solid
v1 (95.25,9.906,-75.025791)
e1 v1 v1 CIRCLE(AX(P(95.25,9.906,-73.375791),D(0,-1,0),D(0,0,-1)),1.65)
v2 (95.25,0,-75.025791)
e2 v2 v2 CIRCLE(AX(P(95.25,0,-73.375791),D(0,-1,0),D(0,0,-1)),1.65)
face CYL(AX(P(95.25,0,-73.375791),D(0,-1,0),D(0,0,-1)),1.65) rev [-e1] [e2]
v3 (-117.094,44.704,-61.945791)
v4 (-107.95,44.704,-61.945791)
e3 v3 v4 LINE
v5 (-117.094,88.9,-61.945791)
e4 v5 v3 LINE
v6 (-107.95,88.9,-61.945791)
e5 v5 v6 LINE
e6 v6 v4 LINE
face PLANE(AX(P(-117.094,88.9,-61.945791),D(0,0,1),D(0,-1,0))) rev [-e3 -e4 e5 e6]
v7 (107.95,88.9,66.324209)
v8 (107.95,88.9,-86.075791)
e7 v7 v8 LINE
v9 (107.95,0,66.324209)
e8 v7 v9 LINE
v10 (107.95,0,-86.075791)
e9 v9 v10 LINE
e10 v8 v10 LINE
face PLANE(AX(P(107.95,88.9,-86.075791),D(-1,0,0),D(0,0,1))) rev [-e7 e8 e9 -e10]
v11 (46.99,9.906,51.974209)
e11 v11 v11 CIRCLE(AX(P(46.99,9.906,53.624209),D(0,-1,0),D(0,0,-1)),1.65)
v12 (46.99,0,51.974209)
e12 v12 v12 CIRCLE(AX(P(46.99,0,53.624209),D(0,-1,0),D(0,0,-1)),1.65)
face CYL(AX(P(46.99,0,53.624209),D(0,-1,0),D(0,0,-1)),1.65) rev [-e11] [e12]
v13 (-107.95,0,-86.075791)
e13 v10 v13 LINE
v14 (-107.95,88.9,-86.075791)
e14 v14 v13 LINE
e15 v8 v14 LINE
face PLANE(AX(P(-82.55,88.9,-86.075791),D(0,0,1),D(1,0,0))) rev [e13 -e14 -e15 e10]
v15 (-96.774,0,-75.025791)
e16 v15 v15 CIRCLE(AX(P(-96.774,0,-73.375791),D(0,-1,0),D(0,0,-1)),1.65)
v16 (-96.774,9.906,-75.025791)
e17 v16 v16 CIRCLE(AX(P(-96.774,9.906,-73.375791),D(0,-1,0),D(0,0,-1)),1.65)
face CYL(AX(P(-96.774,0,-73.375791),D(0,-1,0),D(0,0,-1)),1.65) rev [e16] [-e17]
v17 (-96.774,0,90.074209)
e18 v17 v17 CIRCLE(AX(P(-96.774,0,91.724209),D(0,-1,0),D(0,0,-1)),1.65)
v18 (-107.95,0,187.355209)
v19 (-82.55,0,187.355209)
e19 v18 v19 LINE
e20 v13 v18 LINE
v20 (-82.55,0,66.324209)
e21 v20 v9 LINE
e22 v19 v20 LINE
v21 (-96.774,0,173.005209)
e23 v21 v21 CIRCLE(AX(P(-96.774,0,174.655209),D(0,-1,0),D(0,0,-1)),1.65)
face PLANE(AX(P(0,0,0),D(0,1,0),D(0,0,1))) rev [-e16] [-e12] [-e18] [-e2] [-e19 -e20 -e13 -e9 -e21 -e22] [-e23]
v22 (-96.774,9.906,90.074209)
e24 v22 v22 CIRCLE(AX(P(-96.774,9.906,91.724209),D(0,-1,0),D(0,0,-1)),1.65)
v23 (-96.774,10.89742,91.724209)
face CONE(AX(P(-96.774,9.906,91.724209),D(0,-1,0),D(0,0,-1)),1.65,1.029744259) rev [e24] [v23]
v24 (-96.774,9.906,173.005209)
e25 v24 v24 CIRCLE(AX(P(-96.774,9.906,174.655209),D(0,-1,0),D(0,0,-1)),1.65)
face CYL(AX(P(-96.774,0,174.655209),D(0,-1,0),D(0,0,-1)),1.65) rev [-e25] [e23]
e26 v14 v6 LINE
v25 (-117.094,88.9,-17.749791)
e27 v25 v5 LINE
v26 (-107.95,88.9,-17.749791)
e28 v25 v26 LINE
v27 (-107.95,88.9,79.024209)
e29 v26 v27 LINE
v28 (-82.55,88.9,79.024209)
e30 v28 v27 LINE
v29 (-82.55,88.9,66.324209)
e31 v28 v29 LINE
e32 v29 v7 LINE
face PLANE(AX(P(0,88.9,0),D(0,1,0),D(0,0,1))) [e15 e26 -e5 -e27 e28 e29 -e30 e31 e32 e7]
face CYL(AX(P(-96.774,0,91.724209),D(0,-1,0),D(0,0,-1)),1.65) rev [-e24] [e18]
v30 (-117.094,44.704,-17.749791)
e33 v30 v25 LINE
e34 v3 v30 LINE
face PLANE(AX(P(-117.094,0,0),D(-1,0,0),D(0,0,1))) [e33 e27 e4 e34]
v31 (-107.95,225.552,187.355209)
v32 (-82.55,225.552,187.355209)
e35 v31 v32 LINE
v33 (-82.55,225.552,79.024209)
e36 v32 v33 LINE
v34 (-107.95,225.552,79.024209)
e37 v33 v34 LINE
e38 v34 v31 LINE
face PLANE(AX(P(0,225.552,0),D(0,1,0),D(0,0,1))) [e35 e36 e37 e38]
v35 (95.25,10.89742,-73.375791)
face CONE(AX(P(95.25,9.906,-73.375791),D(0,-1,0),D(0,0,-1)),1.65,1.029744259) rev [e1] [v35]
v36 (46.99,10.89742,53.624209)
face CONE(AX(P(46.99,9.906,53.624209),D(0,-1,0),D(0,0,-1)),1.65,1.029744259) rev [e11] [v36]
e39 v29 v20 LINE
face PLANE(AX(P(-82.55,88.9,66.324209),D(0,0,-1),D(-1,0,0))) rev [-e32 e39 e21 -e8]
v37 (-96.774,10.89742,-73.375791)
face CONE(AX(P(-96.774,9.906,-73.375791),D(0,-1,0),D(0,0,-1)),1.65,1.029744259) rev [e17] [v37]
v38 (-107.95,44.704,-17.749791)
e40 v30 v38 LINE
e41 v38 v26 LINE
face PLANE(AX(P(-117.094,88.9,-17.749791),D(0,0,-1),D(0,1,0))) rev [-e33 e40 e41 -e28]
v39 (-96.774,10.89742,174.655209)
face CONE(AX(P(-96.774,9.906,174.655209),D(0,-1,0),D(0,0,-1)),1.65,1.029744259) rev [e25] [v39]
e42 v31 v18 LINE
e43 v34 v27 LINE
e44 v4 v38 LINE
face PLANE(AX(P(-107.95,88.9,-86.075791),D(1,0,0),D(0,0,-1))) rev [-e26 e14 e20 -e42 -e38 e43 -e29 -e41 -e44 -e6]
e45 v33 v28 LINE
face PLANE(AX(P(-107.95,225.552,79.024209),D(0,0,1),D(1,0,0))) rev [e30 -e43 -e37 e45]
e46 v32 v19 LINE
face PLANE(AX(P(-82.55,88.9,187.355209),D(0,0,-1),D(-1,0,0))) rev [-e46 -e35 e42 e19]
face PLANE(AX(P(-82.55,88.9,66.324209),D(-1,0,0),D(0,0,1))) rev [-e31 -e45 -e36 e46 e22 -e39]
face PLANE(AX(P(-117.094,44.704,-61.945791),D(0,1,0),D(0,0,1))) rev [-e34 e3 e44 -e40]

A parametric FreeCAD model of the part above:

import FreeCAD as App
import Part
import Sketcher
Q = App.Units.Quantity


def add_polygon(sketch, points):
    """Adds a closed chain of lines whose ends are joined by coincident constraints."""
    first, n = sketch.GeometryCount, len(points)
    for a, b in zip(points, points[1:] + points[:1]):
        sketch.addGeometry(Part.LineSegment(App.Vector(*a, 0), App.Vector(*b, 0)), False)
    for i in range(n):
        sketch.addConstraint(Sketcher.Constraint("Coincident", first + i, 2, first + (i + 1) % n, 1))

doc = App.newDocument("Part")
body = doc.addObject("PartDesign::Body", "Body")

# Sketch on XZ plane
sketch1 = body.newObject("Sketcher::SketchObject", "Sketch")
sketch1.AttachmentSupport = (doc.getObject("XZ_Plane"), [""])
sketch1.MapMode = "FlatFace"
add_polygon(sketch1, [(108, -86), (-108, -86), (-108, 187), (-83, 187), (-83, 66), (108, 66)])  # lines 0-5
sketch1.addConstraint(Sketcher.Constraint("Horizontal", 0))
sketch1.addConstraint(Sketcher.Constraint("Vertical", 1))
sketch1.addConstraint(Sketcher.Constraint("Horizontal", 2))
sketch1.addConstraint(Sketcher.Constraint("Vertical", 3))
sketch1.addConstraint(Sketcher.Constraint("Horizontal", 4))
sketch1.addConstraint(Sketcher.Constraint("Vertical", 5))
sketch1.addConstraint(Sketcher.Constraint("DistanceX", 2, 1, 2, 2, Q("1 in")))
sketch1.addConstraint(Sketcher.Constraint("DistanceY", 5, 2, 5, 1, Q("6 in")))
sketch1.addConstraint(Sketcher.Constraint("DistanceX", 0, 2, 0, 1, Q("8.5 in")))
sketch1.addConstraint(Sketcher.Constraint("DistanceY", 1, 1, 1, 2, Q("10.765 in")))
sketch1.addConstraint(Sketcher.Constraint("DistanceX", 0, 2, -1, 1, Q("4.25 in")))
sketch1.addConstraint(Sketcher.Constraint("DistanceY", 0, 2, -1, 1, Q("86.075791 mm")))
pad1 = body.newObject("PartDesign::Pad", "Pad")
pad1.Profile = sketch1
pad1.Length = Q("3.5 in")
pad1.Reversed = True

# Sketch on XZ plane
sketch2 = body.newObject("Sketcher::SketchObject", "Sketch001")
sketch2.AttachmentSupport = (doc.getObject("XZ_Plane"), [""])
sketch2.MapMode = "FlatFace"
sketch2.AttachmentOffset = App.Placement(App.Vector(0, 0, -3.5 * 25.4), App.Rotation())
add_polygon(sketch2, [(-108, 79), (-108, 187), (-83, 187), (-83, 79)])  # lines 0-3
sketch2.addConstraint(Sketcher.Constraint("Vertical", 0))
sketch2.addConstraint(Sketcher.Constraint("Horizontal", 1))
sketch2.addConstraint(Sketcher.Constraint("Vertical", 2))
sketch2.addConstraint(Sketcher.Constraint("Horizontal", 3))
sketch2.addConstraint(Sketcher.Constraint("DistanceX", 1, 1, 1, 2, Q("1 in")))
sketch2.addConstraint(Sketcher.Constraint("DistanceY", 0, 1, 0, 2, Q("4.265 in")))
sketch2.addConstraint(Sketcher.Constraint("DistanceX", 0, 2, -1, 1, Q("4.25 in")))
sketch2.addConstraint(Sketcher.Constraint("DistanceY", -1, 1, 0, 2, Q("187.355209 mm")))
pad2 = body.newObject("PartDesign::Pad", "Pad001")
pad2.Profile = sketch2
pad2.Length = Q("5.38 in")
pad2.Reversed = True

# Sketch on XZ plane
sketch3 = body.newObject("Sketcher::SketchObject", "Sketch002")
sketch3.AttachmentSupport = (doc.getObject("XZ_Plane"), [""])
sketch3.MapMode = "FlatFace"
sketch3.addGeometry(Part.Circle(App.Vector(95.2, -73.4, 0), App.Vector(0, 0, 1), 1.6), False)
sketch3.addGeometry(Part.Circle(App.Vector(-96.8, -73.4, 0), App.Vector(0, 0, 1), 1.6), False)
sketch3.addGeometry(Part.Circle(App.Vector(47, 53.6, 0), App.Vector(0, 0, 1), 1.6), False)
sketch3.addGeometry(Part.Circle(App.Vector(-96.8, 174.7, 0), App.Vector(0, 0, 1), 1.6), False)
sketch3.addGeometry(Part.Circle(App.Vector(-96.8, 91.7, 0), App.Vector(0, 0, 1), 1.6), False)
sketch3.addConstraint(Sketcher.Constraint("Equal", 0, 1))
sketch3.addConstraint(Sketcher.Constraint("Equal", 1, 2))
sketch3.addConstraint(Sketcher.Constraint("Equal", 2, 3))
sketch3.addConstraint(Sketcher.Constraint("Equal", 3, 4))
sketch3.addConstraint(Sketcher.Constraint("Horizontal", 0, 3, 1, 3))
sketch3.addConstraint(Sketcher.Constraint("Vertical", 1, 3, 3, 3))
sketch3.addConstraint(Sketcher.Constraint("Vertical", 3, 3, 4, 3))
sketch3.addConstraint(Sketcher.Constraint("DistanceY", 0, 3, 2, 3, Q("5 in")))
sketch3.addConstraint(Sketcher.Constraint("DistanceX", 2, 3, 0, 3, Q("1.9 in")))
sketch3.addConstraint(Sketcher.Constraint("DistanceY", 2, 3, 4, 3, Q("1.5 in")))
sketch3.addConstraint(Sketcher.Constraint("Diameter", 0, Q("3.3 mm")))
sketch3.addConstraint(Sketcher.Constraint("DistanceX", -1, 1, 0, 3, Q("3.75 in")))
sketch3.addConstraint(Sketcher.Constraint("DistanceX", 1, 3, -1, 1, Q("3.81 in")))
sketch3.addConstraint(Sketcher.Constraint("DistanceY", 2, 3, 3, 3, Q("4.765 in")))
sketch3.addConstraint(Sketcher.Constraint("DistanceY", 0, 3, -1, 1, Q("73.375791 mm")))
doc.recompute()
hole = body.newObject("PartDesign::Hole", "Hole")
hole.Profile = sketch3
hole.ThreadType = "None"
hole.Diameter = 3.3
hole.DepthType = "Dimension"
hole.Depth = Q("0.39 in")
hole.DrillPoint = "Angled"
hole.DrillPointAngle = 118

# Sketch on YZ plane
sketch4 = body.newObject("Sketcher::SketchObject", "Sketch003")
sketch4.AttachmentSupport = (doc.getObject("YZ_Plane"), [""])
sketch4.MapMode = "FlatFace"
sketch4.AttachmentOffset = App.Placement(App.Vector(0, 0, -4.25 * 25.4), App.Rotation())
add_polygon(sketch4, [(89, -62), (45, -62), (45, -18), (89, -18)])  # lines 0-3
sketch4.addConstraint(Sketcher.Constraint("Horizontal", 0))
sketch4.addConstraint(Sketcher.Constraint("Vertical", 1))
sketch4.addConstraint(Sketcher.Constraint("Horizontal", 2))
sketch4.addConstraint(Sketcher.Constraint("Vertical", 3))
sketch4.addConstraint(Sketcher.Constraint("Equal", 2, 1))
sketch4.addConstraint(Sketcher.Constraint("DistanceX", 0, 2, 0, 1, Q("1.74 in")))
sketch4.addConstraint(Sketcher.Constraint("DistanceX", -1, 1, 2, 2, Q("3.5 in")))
sketch4.addConstraint(Sketcher.Constraint("DistanceY", 0, 2, -1, 1, Q("61.945791 mm")))
pad3 = body.newObject("PartDesign::Pad", "Pad002")
pad3.Profile = sketch4
pad3.Length = Q("0.36 in")
pad3.Reversed = True

doc.recompute()
